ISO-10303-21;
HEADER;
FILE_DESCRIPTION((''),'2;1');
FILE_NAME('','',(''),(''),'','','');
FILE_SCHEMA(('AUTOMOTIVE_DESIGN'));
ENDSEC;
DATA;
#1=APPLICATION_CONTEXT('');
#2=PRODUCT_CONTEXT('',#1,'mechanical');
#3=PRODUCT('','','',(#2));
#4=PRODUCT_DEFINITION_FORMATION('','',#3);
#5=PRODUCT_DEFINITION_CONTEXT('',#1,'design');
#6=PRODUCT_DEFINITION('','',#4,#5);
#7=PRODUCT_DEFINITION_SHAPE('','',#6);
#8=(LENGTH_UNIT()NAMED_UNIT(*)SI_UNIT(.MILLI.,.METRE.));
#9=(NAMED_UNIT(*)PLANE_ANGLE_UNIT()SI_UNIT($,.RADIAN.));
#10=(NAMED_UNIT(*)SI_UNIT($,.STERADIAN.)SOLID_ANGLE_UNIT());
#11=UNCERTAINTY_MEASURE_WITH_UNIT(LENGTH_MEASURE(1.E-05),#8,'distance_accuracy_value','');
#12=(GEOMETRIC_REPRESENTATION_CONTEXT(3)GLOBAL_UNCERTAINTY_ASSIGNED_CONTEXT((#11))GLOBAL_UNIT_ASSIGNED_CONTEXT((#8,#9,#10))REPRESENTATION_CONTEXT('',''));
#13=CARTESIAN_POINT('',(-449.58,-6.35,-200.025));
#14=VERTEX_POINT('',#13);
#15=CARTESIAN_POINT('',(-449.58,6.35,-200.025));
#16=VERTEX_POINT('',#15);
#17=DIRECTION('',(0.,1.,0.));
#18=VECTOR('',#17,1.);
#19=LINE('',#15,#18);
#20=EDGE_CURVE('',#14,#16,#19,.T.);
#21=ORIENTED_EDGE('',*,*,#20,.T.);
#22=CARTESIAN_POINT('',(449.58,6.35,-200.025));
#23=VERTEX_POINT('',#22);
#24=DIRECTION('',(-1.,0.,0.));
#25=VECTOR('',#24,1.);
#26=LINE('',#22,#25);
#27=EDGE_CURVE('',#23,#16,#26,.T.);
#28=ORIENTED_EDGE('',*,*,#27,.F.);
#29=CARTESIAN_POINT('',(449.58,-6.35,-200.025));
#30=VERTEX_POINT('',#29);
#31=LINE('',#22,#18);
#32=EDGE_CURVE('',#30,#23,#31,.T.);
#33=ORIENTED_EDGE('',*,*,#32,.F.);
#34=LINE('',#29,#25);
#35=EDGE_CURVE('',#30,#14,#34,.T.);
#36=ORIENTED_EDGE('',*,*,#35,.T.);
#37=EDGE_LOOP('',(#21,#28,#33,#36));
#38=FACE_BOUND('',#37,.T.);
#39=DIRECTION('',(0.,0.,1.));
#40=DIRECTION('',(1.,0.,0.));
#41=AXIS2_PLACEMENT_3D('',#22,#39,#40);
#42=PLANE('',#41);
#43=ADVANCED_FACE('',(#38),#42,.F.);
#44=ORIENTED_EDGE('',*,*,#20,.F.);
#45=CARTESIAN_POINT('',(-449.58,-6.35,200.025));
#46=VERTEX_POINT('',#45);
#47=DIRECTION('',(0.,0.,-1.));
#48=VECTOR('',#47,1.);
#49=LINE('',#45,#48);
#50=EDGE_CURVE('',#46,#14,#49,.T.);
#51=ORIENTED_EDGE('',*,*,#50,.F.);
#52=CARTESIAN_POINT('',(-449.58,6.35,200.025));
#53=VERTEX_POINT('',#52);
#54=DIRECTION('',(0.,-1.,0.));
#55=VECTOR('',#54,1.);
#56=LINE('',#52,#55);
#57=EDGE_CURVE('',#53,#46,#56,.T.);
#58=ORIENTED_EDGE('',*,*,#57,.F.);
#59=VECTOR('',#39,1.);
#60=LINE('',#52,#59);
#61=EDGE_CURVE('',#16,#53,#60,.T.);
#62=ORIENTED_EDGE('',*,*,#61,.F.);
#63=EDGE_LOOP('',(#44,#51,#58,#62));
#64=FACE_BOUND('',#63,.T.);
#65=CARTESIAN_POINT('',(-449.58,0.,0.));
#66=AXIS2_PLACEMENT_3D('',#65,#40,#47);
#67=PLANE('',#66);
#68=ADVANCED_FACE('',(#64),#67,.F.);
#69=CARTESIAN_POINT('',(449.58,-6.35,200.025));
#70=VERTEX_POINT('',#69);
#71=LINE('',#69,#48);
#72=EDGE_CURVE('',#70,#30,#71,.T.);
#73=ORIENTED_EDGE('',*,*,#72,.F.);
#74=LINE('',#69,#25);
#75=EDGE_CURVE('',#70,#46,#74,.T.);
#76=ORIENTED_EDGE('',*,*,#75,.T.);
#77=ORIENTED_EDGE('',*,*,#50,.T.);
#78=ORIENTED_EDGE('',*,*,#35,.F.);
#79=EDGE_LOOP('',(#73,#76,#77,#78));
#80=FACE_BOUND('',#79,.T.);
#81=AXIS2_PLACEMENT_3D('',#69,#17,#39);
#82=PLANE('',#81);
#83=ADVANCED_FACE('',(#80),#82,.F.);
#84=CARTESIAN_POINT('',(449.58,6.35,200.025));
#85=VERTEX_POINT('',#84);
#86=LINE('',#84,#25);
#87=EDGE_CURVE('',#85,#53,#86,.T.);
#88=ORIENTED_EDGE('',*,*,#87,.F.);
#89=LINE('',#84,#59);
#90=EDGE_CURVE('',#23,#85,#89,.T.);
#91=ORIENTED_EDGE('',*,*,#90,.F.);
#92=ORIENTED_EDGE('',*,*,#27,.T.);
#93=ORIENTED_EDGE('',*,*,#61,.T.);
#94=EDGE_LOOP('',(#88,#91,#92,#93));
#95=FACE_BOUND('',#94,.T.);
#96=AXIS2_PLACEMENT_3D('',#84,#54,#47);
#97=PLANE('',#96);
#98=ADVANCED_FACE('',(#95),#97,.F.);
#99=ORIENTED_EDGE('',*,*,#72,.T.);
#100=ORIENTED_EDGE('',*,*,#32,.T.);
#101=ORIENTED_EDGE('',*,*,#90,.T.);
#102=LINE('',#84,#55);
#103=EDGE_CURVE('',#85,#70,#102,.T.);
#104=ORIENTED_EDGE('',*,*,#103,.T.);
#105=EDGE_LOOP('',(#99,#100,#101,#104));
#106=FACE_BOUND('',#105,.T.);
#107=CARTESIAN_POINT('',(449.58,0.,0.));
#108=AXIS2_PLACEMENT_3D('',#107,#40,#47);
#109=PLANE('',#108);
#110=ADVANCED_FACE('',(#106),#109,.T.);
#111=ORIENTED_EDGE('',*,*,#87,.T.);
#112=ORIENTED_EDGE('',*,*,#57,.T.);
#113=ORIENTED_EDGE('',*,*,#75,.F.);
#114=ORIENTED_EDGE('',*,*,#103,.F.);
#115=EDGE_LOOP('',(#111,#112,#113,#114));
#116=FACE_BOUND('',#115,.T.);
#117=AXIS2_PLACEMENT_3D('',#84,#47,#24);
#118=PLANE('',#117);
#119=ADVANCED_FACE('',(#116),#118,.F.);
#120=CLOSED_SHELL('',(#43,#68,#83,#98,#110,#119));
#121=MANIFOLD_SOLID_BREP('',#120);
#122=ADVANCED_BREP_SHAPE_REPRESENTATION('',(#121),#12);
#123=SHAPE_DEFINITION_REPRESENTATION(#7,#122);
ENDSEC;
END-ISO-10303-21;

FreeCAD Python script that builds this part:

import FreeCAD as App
import Part
import Sketcher
from FreeCAD import Vector
Q = App.Units.Quantity

doc = App.newDocument("Part")
body = doc.addObject("PartDesign::Body", "Body")

sketch1 = body.newObject("Sketcher::SketchObject", "Sketch")
sketch1.AttachmentSupport = (doc.getObject("YZ_Plane"), [""])
sketch1.MapMode = "FlatFace"
sketch1.addGeometry(Part.LineSegment(Vector(6, 200, 0), Vector(-6, 200, 0)), False)
sketch1.addGeometry(Part.LineSegment(Vector(-6, 200, 0), Vector(-6, -200, 0)), False)
sketch1.addGeometry(Part.LineSegment(Vector(-6, -200, 0), Vector(6, -200, 0)), False)
sketch1.addGeometry(Part.LineSegment(Vector(6, -200, 0), Vector(6, 200, 0)), False)
sketch1.addConstraint(Sketcher.Constraint("Coincident", 0, 2, 1, 1))
sketch1.addConstraint(Sketcher.Constraint("Coincident", 1, 2, 2, 1))
sketch1.addConstraint(Sketcher.Constraint("Coincident", 2, 2, 3, 1))
sketch1.addConstraint(Sketcher.Constraint("Coincident", 3, 2, 0, 1))
sketch1.addConstraint(Sketcher.Constraint("Horizontal", 0))
sketch1.addConstraint(Sketcher.Constraint("Vertical", 1))
sketch1.addConstraint(Sketcher.Constraint("Horizontal", 2))
sketch1.addConstraint(Sketcher.Constraint("Vertical", 3))
sketch1.addConstraint(Sketcher.Constraint("Symmetric", 0, 2, 2, 2, -1, 1))
sketch1.addConstraint(Sketcher.Constraint("DistanceX", 0, 2, 0, 1, Q("0.5 in")))
sketch1.addConstraint(Sketcher.Constraint("DistanceY", 1, 2, 1, 1, Q("15.75 in")))
pad1 = body.newObject("PartDesign::Pad", "Pad")
pad1.Profile = sketch1
pad1.Length = Q("35.4 in")
pad1.Midplane = True

doc.recompute()
